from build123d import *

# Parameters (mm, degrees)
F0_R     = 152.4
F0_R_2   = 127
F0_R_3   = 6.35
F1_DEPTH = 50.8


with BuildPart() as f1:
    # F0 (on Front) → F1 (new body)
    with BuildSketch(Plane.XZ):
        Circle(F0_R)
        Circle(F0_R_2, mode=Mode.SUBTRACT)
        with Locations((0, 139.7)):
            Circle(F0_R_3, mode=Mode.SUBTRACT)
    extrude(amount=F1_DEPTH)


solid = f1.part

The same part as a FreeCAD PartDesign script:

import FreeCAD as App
import Part
import Sketcher
from FreeCAD import Vector
Q = App.Units.Quantity

doc = App.newDocument("Part")
body = doc.addObject("PartDesign::Body", "Body")

sketch1 = body.newObject("Sketcher::SketchObject", "Sketch")
sketch1.AttachmentSupport = (doc.getObject("XZ_Plane"), [""])
sketch1.MapMode = "FlatFace"
sketch1.addGeometry([
    Part.Circle(Vector(0, 0, 0), Vector(0, 0, 1), 152),
    Part.Circle(Vector(0, 0, 0), Vector(0, 0, 1), 127),
    Part.Circle(Vector(0, 140, 0), Vector(0, 0, 1), 6),
], False)
sketch1.addConstraint([
    Sketcher.Constraint("Coincident", 0, 3, -1, 1),
    Sketcher.Constraint("Coincident", 1, 3, -1, 1),
    Sketcher.Constraint("PointOnObject", 2, 3, -2),
    Sketcher.Constraint("Diameter", 0, Q("12 in")),
    Sketcher.Constraint("Diameter", 1, Q("10 in")),
    Sketcher.Constraint("Diameter", 2, Q("0.5 in")),
    Sketcher.Constraint("DistanceY", -1, 1, 2, 3, Q("5.5 in")),
])
pad1 = body.newObject("PartDesign::Pad", "Pad")
pad1.Profile = sketch1
pad1.Length = Q("2 in")

doc.recompute()
